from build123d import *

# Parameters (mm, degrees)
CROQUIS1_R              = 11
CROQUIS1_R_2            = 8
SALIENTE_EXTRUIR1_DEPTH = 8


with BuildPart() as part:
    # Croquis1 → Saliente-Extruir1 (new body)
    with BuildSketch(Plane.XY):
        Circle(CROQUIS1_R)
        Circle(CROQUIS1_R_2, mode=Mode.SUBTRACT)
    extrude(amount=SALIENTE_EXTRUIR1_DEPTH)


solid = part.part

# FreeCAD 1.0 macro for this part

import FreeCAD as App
import Part
import Sketcher
from FreeCAD import Vector

doc = App.newDocument("Part")
body = doc.addObject("PartDesign::Body", "Body")

# Sketch on XY plane
sketch1 = body.newObject("Sketcher::SketchObject", "Sketch")
sketch1.AttachmentSupport = (doc.getObject("XY_Plane"), [""])
sketch1.MapMode = "FlatFace"
sketch1.addGeometry([
    Part.Circle(Vector(0, 0, 0), Vector(0, 0, 1), 11),
    Part.Circle(Vector(0, 0, 0), Vector(0, 0, 1), 8),
], False)
sketch1.addConstraint([
    Sketcher.Constraint("Coincident", 0, 3, -1, 1),
    Sketcher.Constraint("Coincident", 1, 3, -1, 1),
    Sketcher.Constraint("Diameter", 0, 22.0),
    Sketcher.Constraint("Diameter", 1, 16.0),
])
pad1 = body.newObject("PartDesign::Pad", "Pad")
pad1.Profile = sketch1
pad1.Length = 8

doc.recompute()
